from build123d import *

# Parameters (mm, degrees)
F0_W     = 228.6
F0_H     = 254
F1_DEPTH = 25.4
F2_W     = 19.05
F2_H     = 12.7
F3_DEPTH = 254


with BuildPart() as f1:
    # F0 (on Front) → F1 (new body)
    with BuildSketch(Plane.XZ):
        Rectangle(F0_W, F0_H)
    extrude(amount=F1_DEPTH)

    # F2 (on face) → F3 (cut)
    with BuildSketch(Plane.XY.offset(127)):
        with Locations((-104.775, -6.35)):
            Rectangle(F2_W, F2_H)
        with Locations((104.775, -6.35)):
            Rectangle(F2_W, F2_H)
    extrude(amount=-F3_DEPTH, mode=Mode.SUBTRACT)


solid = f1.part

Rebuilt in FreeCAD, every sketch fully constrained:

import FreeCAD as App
import Part
import Sketcher
Q = App.Units.Quantity

doc = App.newDocument("Part")
params = doc.addObject("Spreadsheet::Sheet", "Params")
for row, (alias, value) in enumerate([
    ("sketch1_width", "9 in"),
    ("sketch1_height", "10 in"),
    ("pad1_length", "1 in"),
    ("sketch2_height", "0.5 in"),
    ("sketch2_width", "0.75 in"),
    ("pocket1_length", "10 in"),
], start=1):
    params.set(f"A{row}", alias)
    params.set(f"B{row}", "=" + value)
    params.setAlias(f"B{row}", alias)

body = doc.addObject("PartDesign::Body", "Body")

sketch1 = body.newObject("Sketcher::SketchObject", "Sketch")
sketch1.AttachmentSupport = (doc.getObject("XZ_Plane"), [""])
sketch1.MapMode = "FlatFace"
sketch1.addGeometry(Part.LineSegment(App.Vector(-114, 127, 0), App.Vector(-114, -127, 0)), False)
sketch1.addGeometry(Part.LineSegment(App.Vector(-114, -127, 0), App.Vector(114, -127, 0)), False)
sketch1.addGeometry(Part.LineSegment(App.Vector(114, -127, 0), App.Vector(114, 127, 0)), False)
sketch1.addGeometry(Part.LineSegment(App.Vector(114, 127, 0), App.Vector(-114, 127, 0)), False)
sketch1.addConstraint(Sketcher.Constraint("Coincident", 0, 2, 1, 1))
sketch1.addConstraint(Sketcher.Constraint("Coincident", 1, 2, 2, 1))
sketch1.addConstraint(Sketcher.Constraint("Coincident", 2, 2, 3, 1))
sketch1.addConstraint(Sketcher.Constraint("Coincident", 3, 2, 0, 1))
sketch1.addConstraint(Sketcher.Constraint("Vertical", 0))
sketch1.addConstraint(Sketcher.Constraint("Horizontal", 1))
sketch1.addConstraint(Sketcher.Constraint("Vertical", 2))
sketch1.addConstraint(Sketcher.Constraint("Horizontal", 3))
sketch1.addConstraint(Sketcher.Constraint("Symmetric", 0, 2, 2, 2, -1, 1))
sketch1.addConstraint(Sketcher.Constraint("DistanceX", 1, 1, 1, 2, Q("9 in")))
sketch1.addConstraint(Sketcher.Constraint("DistanceY", 0, 2, 0, 1, Q("10 in")))
sketch1.setExpression("Constraints[9]", "Params.sketch1_width")
sketch1.setExpression("Constraints[10]", "Params.sketch1_height")
pad1 = body.newObject("PartDesign::Pad", "Pad")
pad1.Profile = sketch1
pad1.setExpression("Length", "Params.pad1_length")

sketch2 = body.newObject("Sketcher::SketchObject", "Sketch001")
sketch2.AttachmentSupport = (doc.getObject("XY_Plane"), [""])
sketch2.MapMode = "FlatFace"
sketch2.AttachmentOffset = App.Placement(App.Vector(0, 0, 5 * 25.4), App.Rotation())
sketch2.addGeometry(Part.LineSegment(App.Vector(-114, 0, 0), App.Vector(-114, -13, 0)), False)
sketch2.addGeometry(Part.LineSegment(App.Vector(-114, -13, 0), App.Vector(-95, -13, 0)), False)
sketch2.addGeometry(Part.LineSegment(App.Vector(-95, -13, 0), App.Vector(-95, 0, 0)), False)
sketch2.addGeometry(Part.LineSegment(App.Vector(-95, 0, 0), App.Vector(-114, 0, 0)), False)
sketch2.addGeometry(Part.LineSegment(App.Vector(95, 0, 0), App.Vector(95, -13, 0)), False)
sketch2.addGeometry(Part.LineSegment(App.Vector(95, -13, 0), App.Vector(114, -13, 0)), False)
sketch2.addGeometry(Part.LineSegment(App.Vector(114, -13, 0), App.Vector(114, 0, 0)), False)
sketch2.addGeometry(Part.LineSegment(App.Vector(114, 0, 0), App.Vector(95, 0, 0)), False)
sketch2.addConstraint(Sketcher.Constraint("Coincident", 0, 2, 1, 1))
sketch2.addConstraint(Sketcher.Constraint("Coincident", 1, 2, 2, 1))
sketch2.addConstraint(Sketcher.Constraint("Coincident", 2, 2, 3, 1))
sketch2.addConstraint(Sketcher.Constraint("Coincident", 3, 2, 0, 1))
sketch2.addConstraint(Sketcher.Constraint("Coincident", 4, 2, 5, 1))
sketch2.addConstraint(Sketcher.Constraint("Coincident", 5, 2, 6, 1))
sketch2.addConstraint(Sketcher.Constraint("Coincident", 6, 2, 7, 1))
sketch2.addConstraint(Sketcher.Constraint("Coincident", 7, 2, 4, 1))
sketch2.addConstraint(Sketcher.Constraint("Vertical", 0))
sketch2.addConstraint(Sketcher.Constraint("Horizontal", 1))
sketch2.addConstraint(Sketcher.Constraint("Vertical", 2))
sketch2.addConstraint(Sketcher.Constraint("Horizontal", 3))
sketch2.addConstraint(Sketcher.Constraint("Vertical", 4))
sketch2.addConstraint(Sketcher.Constraint("Horizontal", 5))
sketch2.addConstraint(Sketcher.Constraint("Vertical", 6))
sketch2.addConstraint(Sketcher.Constraint("Horizontal", 7))
sketch2.addConstraint(Sketcher.Constraint("Symmetric", 3, 2, 6, 2, -1, 1))
sketch2.addConstraint(Sketcher.Constraint("Symmetric", 1, 2, 4, 2, -2))
sketch2.addConstraint(Sketcher.Constraint("PointOnObject", 2, 2, -1))
sketch2.addConstraint(Sketcher.Constraint("DistanceY", 0, 2, 0, 1, Q("0.5 in")))
sketch2.addConstraint(Sketcher.Constraint("DistanceX", 0, 2, 5, 2, Q("9 in")))
sketch2.addConstraint(Sketcher.Constraint("DistanceX", 1, 1, 1, 2, Q("0.75 in")))
sketch2.setExpression("Constraints[19]", "Params.sketch2_height")
sketch2.setExpression("Constraints[21]", "Params.sketch2_width")
pocket1 = body.newObject("PartDesign::Pocket", "Pocket")
pocket1.Profile = sketch2
pocket1.setExpression("Length", "Params.pocket1_length")

doc.recompute()
